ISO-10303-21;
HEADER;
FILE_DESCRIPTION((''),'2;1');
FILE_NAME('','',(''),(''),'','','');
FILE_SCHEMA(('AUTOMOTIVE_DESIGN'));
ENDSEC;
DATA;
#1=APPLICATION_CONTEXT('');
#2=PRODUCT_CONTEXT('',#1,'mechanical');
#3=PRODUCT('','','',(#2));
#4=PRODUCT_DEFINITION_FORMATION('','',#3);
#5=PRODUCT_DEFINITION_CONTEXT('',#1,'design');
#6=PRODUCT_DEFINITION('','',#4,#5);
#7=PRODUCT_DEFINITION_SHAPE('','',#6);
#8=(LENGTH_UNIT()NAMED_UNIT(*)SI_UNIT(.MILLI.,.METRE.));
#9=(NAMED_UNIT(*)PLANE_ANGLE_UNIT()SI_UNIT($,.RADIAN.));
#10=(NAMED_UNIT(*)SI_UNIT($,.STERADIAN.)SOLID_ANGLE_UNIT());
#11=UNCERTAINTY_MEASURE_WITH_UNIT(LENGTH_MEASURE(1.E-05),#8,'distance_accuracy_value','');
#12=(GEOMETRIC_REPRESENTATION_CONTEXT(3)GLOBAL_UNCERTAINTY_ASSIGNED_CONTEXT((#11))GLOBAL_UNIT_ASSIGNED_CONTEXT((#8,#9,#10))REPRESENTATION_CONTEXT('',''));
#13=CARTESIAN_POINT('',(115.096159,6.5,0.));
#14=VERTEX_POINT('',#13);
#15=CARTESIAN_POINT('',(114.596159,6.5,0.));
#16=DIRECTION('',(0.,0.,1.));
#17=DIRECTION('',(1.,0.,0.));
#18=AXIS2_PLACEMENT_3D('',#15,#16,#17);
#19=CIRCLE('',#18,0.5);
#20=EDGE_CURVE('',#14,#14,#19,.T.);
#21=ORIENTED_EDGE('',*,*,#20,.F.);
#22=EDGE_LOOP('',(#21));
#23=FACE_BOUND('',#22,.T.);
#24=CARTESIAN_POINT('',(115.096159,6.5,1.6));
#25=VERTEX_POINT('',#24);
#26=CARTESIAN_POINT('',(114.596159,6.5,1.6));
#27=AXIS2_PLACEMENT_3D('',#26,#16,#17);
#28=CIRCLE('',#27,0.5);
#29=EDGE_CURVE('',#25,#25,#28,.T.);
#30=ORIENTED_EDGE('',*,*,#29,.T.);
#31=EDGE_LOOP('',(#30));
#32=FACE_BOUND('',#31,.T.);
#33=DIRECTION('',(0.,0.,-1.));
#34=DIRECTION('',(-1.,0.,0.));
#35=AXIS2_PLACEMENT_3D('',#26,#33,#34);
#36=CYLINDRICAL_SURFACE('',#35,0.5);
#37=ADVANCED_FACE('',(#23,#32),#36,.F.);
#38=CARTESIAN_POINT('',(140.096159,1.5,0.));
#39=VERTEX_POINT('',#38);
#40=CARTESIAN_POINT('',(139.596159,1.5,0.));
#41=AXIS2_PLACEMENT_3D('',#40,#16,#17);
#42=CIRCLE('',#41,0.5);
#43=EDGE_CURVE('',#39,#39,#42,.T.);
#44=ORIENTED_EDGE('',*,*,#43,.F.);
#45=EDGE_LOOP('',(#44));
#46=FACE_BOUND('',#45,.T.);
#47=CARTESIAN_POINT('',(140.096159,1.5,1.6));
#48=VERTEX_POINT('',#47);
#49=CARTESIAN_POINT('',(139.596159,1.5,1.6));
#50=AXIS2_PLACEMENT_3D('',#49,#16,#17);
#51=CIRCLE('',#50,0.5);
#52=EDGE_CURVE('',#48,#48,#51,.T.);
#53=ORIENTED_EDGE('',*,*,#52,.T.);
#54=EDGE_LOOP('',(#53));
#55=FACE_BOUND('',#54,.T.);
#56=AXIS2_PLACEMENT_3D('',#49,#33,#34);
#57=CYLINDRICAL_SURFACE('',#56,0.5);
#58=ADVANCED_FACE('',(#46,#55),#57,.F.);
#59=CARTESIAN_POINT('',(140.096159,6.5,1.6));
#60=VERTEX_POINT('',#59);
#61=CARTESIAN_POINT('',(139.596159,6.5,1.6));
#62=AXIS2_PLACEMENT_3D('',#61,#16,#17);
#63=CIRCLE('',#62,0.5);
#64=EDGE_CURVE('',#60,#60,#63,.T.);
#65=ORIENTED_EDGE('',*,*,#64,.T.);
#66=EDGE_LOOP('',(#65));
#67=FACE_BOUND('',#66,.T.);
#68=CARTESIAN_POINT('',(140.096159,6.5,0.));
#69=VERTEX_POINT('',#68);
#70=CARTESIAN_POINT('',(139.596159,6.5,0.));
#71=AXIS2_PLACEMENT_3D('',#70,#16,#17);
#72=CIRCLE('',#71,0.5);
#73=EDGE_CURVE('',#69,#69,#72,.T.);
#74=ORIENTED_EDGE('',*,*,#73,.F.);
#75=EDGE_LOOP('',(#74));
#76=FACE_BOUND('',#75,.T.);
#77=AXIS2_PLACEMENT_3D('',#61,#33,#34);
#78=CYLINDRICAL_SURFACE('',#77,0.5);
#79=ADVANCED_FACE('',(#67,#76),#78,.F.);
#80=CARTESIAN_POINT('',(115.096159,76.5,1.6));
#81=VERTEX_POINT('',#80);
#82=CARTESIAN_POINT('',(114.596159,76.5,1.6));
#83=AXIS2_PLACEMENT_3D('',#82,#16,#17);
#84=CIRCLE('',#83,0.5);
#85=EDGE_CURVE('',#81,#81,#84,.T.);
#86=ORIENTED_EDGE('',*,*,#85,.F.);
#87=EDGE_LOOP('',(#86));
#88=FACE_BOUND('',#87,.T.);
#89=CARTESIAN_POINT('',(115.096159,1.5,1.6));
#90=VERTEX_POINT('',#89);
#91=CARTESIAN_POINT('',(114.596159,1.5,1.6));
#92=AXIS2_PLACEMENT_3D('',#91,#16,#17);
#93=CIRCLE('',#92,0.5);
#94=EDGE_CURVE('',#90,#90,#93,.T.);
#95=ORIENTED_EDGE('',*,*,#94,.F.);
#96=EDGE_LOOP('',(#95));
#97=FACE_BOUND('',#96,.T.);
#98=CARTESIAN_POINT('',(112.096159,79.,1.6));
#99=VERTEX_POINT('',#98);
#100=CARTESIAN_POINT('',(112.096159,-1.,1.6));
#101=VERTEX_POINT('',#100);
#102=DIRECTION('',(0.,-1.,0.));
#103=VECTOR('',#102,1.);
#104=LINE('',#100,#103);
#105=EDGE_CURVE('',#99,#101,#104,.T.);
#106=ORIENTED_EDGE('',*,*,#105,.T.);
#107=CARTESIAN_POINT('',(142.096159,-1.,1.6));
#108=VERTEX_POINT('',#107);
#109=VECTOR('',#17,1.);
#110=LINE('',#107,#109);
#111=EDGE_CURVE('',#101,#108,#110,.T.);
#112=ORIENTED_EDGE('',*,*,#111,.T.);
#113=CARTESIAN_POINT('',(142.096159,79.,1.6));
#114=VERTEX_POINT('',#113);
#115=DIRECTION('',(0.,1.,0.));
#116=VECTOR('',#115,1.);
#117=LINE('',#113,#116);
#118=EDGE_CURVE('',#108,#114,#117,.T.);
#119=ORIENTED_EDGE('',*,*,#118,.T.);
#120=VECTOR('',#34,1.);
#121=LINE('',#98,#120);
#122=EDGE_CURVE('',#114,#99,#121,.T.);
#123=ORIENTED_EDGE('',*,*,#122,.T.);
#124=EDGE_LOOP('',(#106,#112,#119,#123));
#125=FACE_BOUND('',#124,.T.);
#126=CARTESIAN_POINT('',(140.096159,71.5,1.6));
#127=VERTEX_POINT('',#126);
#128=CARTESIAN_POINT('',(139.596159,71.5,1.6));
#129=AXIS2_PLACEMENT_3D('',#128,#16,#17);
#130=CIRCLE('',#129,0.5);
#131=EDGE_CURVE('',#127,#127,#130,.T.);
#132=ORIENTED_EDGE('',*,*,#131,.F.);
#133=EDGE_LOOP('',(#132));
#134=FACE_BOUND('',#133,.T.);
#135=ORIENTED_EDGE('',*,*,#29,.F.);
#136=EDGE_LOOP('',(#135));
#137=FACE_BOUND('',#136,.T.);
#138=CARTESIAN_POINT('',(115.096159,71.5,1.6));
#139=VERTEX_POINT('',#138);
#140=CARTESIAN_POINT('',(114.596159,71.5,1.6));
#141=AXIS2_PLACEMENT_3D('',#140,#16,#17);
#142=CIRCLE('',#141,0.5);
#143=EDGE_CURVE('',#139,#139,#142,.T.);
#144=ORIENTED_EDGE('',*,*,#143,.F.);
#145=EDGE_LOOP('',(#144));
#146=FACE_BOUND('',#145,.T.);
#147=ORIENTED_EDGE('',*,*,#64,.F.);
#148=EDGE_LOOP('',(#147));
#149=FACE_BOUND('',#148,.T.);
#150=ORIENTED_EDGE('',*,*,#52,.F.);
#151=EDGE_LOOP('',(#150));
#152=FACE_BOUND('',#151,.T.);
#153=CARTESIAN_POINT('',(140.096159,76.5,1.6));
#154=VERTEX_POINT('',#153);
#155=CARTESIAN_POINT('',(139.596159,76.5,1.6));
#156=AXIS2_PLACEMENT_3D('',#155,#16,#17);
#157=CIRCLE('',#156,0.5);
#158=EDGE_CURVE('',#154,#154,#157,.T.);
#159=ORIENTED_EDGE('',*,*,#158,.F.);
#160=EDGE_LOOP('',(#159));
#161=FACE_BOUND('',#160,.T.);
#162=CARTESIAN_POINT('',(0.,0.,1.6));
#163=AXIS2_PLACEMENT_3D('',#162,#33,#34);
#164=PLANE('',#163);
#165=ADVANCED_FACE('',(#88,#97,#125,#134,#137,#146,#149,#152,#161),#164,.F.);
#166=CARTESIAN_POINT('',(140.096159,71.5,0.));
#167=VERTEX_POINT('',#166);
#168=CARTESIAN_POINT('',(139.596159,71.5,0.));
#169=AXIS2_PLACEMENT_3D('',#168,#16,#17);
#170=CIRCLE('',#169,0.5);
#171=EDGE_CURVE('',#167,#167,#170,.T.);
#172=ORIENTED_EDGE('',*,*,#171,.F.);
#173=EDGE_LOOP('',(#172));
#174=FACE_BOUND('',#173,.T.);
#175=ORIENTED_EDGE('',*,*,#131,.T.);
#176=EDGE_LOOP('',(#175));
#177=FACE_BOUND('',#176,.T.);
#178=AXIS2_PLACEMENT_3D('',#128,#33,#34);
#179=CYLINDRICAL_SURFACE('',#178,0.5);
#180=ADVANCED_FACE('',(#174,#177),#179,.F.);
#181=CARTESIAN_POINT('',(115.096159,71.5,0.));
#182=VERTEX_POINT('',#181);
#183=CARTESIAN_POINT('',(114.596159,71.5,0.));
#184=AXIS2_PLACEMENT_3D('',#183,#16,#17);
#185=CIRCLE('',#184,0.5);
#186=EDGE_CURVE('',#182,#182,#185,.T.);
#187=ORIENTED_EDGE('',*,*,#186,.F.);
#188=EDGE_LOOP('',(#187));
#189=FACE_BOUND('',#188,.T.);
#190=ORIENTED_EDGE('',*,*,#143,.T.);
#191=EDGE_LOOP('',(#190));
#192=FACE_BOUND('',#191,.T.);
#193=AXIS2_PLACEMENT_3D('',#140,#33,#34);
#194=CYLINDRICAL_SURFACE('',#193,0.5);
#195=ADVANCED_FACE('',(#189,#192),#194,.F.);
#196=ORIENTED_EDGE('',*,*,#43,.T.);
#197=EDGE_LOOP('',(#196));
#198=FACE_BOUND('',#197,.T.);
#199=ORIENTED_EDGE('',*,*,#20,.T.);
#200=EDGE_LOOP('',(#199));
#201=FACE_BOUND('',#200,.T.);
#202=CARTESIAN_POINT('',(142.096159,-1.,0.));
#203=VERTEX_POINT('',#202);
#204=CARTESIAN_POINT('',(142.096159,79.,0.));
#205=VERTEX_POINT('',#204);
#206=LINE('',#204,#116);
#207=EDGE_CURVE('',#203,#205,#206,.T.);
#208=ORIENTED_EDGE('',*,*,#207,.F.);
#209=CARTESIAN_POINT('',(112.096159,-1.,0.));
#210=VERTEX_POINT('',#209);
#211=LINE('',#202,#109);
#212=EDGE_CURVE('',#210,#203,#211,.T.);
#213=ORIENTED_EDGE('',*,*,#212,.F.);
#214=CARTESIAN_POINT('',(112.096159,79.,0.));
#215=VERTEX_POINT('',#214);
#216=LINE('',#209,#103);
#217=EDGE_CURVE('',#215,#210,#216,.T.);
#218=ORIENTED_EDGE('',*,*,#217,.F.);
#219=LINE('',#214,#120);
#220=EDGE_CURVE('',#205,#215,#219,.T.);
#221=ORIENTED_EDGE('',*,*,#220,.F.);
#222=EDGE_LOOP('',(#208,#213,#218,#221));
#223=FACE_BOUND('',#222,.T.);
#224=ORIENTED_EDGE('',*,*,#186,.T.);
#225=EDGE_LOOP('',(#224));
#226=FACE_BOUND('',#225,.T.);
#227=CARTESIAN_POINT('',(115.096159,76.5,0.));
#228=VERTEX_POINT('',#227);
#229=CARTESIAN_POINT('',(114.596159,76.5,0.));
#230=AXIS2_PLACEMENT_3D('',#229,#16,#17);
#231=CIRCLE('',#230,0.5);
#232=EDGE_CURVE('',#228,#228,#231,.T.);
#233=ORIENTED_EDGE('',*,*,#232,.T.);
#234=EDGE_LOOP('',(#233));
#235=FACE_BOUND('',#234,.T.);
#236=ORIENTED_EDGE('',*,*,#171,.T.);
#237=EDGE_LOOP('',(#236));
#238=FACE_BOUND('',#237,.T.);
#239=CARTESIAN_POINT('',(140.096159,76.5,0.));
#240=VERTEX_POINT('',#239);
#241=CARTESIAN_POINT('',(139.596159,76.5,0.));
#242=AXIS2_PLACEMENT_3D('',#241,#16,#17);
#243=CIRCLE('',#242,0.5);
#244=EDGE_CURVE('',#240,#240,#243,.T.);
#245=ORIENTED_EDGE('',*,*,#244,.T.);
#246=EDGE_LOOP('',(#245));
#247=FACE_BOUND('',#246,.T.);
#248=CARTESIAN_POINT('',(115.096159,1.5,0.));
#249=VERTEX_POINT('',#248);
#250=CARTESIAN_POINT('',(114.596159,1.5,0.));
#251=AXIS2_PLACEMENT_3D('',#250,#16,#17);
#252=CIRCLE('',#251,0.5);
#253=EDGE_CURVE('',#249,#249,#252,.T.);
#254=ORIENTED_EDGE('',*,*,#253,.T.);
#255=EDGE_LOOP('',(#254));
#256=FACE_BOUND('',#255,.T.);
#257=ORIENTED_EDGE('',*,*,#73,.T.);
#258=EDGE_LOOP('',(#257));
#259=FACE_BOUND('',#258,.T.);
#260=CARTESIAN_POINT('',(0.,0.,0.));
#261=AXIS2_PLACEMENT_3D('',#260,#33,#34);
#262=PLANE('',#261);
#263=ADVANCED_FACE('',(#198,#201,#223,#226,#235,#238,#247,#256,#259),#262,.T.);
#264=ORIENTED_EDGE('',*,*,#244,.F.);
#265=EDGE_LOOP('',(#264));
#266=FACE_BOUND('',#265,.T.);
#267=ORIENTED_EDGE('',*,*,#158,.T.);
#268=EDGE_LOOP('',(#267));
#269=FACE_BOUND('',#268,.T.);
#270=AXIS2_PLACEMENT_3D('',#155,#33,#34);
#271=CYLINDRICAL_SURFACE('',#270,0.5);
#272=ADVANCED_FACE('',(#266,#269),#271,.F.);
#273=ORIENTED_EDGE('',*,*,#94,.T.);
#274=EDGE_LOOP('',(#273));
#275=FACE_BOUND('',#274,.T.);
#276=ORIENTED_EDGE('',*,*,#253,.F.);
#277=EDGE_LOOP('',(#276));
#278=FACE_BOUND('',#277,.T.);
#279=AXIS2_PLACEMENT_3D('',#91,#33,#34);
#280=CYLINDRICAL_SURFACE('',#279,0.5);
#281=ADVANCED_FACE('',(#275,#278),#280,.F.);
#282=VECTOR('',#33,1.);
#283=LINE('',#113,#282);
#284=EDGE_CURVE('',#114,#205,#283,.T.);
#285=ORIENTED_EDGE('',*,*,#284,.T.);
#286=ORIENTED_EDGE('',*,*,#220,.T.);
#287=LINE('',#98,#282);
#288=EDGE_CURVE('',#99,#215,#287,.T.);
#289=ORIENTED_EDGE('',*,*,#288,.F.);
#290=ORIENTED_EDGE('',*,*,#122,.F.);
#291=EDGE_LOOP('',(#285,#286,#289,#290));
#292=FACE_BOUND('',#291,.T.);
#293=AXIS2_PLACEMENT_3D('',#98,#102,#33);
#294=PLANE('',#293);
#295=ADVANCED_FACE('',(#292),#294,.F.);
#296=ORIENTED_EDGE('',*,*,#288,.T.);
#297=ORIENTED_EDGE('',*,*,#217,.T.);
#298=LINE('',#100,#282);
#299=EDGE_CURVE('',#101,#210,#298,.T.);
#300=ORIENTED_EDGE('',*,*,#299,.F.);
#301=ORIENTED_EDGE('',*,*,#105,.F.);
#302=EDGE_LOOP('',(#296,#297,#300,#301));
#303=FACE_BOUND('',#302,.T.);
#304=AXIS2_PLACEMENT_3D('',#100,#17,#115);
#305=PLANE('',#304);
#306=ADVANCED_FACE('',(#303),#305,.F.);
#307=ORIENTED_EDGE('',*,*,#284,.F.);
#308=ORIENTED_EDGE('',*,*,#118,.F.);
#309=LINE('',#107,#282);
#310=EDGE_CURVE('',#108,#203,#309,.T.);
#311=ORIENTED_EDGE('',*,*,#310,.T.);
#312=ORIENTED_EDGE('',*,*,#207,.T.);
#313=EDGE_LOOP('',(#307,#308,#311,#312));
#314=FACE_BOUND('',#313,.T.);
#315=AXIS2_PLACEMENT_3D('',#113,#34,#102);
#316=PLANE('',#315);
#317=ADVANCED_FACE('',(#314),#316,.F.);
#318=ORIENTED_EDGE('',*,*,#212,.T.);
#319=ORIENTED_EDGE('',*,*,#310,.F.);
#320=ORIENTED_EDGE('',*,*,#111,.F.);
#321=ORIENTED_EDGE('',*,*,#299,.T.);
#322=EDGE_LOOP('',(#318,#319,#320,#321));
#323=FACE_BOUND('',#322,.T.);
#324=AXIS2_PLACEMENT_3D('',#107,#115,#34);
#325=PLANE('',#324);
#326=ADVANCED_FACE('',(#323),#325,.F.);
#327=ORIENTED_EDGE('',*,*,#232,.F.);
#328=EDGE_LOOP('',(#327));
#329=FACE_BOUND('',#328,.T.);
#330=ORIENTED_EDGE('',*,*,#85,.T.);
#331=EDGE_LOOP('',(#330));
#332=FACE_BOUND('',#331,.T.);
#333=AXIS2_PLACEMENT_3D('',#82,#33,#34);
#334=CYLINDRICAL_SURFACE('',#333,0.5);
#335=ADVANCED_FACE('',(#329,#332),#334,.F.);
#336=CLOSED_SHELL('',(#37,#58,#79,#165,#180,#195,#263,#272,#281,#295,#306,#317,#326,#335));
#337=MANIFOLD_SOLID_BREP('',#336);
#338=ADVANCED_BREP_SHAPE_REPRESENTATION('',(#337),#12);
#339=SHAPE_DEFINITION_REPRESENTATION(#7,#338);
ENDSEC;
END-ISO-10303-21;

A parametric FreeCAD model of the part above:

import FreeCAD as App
import Part
import Sketcher
from FreeCAD import Vector
Q = App.Units.Quantity

doc = App.newDocument("Part")
body = doc.addObject("PartDesign::Body", "Body")

sketch1 = body.newObject("Sketcher::SketchObject", "Sketch")
sketch1.AttachmentSupport = (doc.getObject("XY_Plane"), [""])
sketch1.MapMode = "FlatFace"
sketch1.addGeometry([
    Part.LineSegment(Vector(112.1, 79, 0), Vector(112.1, -1, 0)),
    Part.LineSegment(Vector(112.1, -1, 0), Vector(142.1, -1, 0)),
    Part.LineSegment(Vector(142.1, -1, 0), Vector(142.1, 79, 0)),
    Part.LineSegment(Vector(142.1, 79, 0), Vector(112.1, 79, 0)),
    Part.Circle(Vector(114.6, 1.5, 0), Vector(0, 0, 1), 0.5),
    Part.Circle(Vector(114.6, 6.5, 0), Vector(0, 0, 1), 0.5),
    Part.Circle(Vector(139.6, 1.5, 0), Vector(0, 0, 1), 0.5),
    Part.Circle(Vector(139.6, 6.5, 0), Vector(0, 0, 1), 0.5),
    Part.Circle(Vector(114.6, 71.5, 0), Vector(0, 0, 1), 0.5),
    Part.Circle(Vector(114.6, 76.5, 0), Vector(0, 0, 1), 0.5),
    Part.Circle(Vector(139.6, 71.5, 0), Vector(0, 0, 1), 0.5),
    Part.Circle(Vector(139.6, 76.5, 0), Vector(0, 0, 1), 0.5),
], False)
sketch1.addConstraint([
    Sketcher.Constraint("Coincident", 0, 2, 1, 1),
    Sketcher.Constraint("Coincident", 1, 2, 2, 1),
    Sketcher.Constraint("Coincident", 2, 2, 3, 1),
    Sketcher.Constraint("Coincident", 3, 2, 0, 1),
    Sketcher.Constraint("Vertical", 0),
    Sketcher.Constraint("Horizontal", 1),
    Sketcher.Constraint("Vertical", 2),
    Sketcher.Constraint("Horizontal", 3),
    Sketcher.Constraint("Equal", 4, 5),
    Sketcher.Constraint("Equal", 5, 6),
    Sketcher.Constraint("Equal", 6, 7),
    Sketcher.Constraint("Equal", 7, 8),
    Sketcher.Constraint("Equal", 8, 9),
    Sketcher.Constraint("Equal", 9, 10),
    Sketcher.Constraint("Equal", 10, 11),
    Sketcher.Constraint("Horizontal", 4, 3, 6, 3),
    Sketcher.Constraint("Horizontal", 5, 3, 7, 3),
    Sketcher.Constraint("Horizontal", 8, 3, 10, 3),
    Sketcher.Constraint("Horizontal", 9, 3, 11, 3),
    Sketcher.Constraint("Vertical", 4, 3, 5, 3),
    Sketcher.Constraint("Vertical", 6, 3, 7, 3),
    Sketcher.Constraint("Vertical", 5, 3, 8, 3),
    Sketcher.Constraint("Vertical", 8, 3, 9, 3),
    Sketcher.Constraint("Vertical", 7, 3, 10, 3),
    Sketcher.Constraint("Vertical", 10, 3, 11, 3),
    Sketcher.Constraint("Diameter", 4, Q("1 mm")),
    Sketcher.Constraint("DistanceX", 1, 1, 1, 2, Q("30 mm")),
    Sketcher.Constraint("DistanceY", 0, 2, 0, 1, Q("80 mm")),
    Sketcher.Constraint("DistanceY", 0, 2, -1, 1, Q("1 mm")),
    Sketcher.Constraint("DistanceY", 4, 3, 5, 3, Q("5 mm")),
    Sketcher.Constraint("DistanceX", 4, 3, 6, 3, Q("25 mm")),
    Sketcher.Constraint("DistanceY", 5, 3, 8, 3, Q("65 mm")),
    Sketcher.Constraint("DistanceY", 8, 3, 9, 3, Q("5 mm")),
    Sketcher.Constraint("DistanceY", -1, 1, 4, 3, Q("1.5 mm")),
    Sketcher.Constraint("DistanceX", 0, 2, 4, 3, Q("2.5 mm")),
    Sketcher.Constraint("DistanceX", -1, 1, 4, 3, Q("114.596159 mm")),
])
pad1 = body.newObject("PartDesign::Pad", "Pad")
pad1.Profile = sketch1
pad1.Length = 1.6

doc.recompute()
